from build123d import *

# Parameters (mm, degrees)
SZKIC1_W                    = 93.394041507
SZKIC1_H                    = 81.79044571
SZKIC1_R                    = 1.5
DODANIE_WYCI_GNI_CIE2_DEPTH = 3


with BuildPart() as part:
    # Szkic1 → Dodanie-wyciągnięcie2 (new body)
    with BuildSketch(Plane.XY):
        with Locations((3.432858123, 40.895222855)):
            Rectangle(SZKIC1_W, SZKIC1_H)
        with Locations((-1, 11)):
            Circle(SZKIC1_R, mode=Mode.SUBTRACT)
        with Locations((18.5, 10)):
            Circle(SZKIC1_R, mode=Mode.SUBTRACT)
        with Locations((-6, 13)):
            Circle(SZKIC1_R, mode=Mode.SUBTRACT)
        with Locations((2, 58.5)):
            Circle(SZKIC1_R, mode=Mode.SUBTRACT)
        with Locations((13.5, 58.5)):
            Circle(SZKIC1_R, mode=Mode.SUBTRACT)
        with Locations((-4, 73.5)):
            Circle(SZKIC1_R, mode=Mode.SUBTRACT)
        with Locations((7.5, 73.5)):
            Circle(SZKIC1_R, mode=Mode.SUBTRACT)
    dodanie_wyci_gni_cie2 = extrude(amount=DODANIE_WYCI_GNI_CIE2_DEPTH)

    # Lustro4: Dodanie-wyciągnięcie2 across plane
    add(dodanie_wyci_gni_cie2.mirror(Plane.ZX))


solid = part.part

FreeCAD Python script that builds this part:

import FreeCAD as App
import Part
import Sketcher


def add_polygon(sketch, points):
    """Adds a closed chain of lines whose ends are joined by coincident constraints."""
    first, n = sketch.GeometryCount, len(points)
    for a, b in zip(points, points[1:] + points[:1]):
        sketch.addGeometry(Part.LineSegment(App.Vector(*a, 0), App.Vector(*b, 0)), False)
    for i in range(n):
        sketch.addConstraint(Sketcher.Constraint("Coincident", first + i, 2, first + (i + 1) % n, 1))

doc = App.newDocument("Part")
params = doc.addObject("Spreadsheet::Sheet", "Params")
for row, (alias, value) in enumerate([
    ("sketch1_diameter", "3 mm"),
    ("pad1_length", "3 mm"),
], start=1):
    params.set(f"A{row}", alias)
    params.set(f"B{row}", "=" + value)
    params.setAlias(f"B{row}", alias)

body = doc.addObject("PartDesign::Body", "Body")

# Sketch on XY plane
sketch1 = body.newObject("Sketcher::SketchObject", "Sketch")
sketch1.AttachmentSupport = (doc.getObject("XY_Plane"), [""])
sketch1.MapMode = "FlatFace"
add_polygon(sketch1, [(-43.3, 81.8), (-43.3, 0), (50.1, 0), (50.1, 81.8)])  # lines 0-3
sketch1.addGeometry(Part.Circle(App.Vector(-6, 13, 0), App.Vector(0, 0, 1), 1.5), False)  # 4
sketch1.addGeometry(Part.Circle(App.Vector(-1, 11, 0), App.Vector(0, 0, 1), 1.5), False)  # 5
sketch1.addGeometry(Part.Circle(App.Vector(18.5, 10, 0), App.Vector(0, 0, 1), 1.5), False)  # 6
sketch1.addGeometry(Part.Circle(App.Vector(-4, 73.5, 0), App.Vector(0, 0, 1), 1.5), False)  # 7
sketch1.addGeometry(Part.Circle(App.Vector(2, 58.5, 0), App.Vector(0, 0, 1), 1.5), False)  # 8
sketch1.addGeometry(Part.Circle(App.Vector(7.5, 73.5, 0), App.Vector(0, 0, 1), 1.5), False)  # 9
sketch1.addGeometry(Part.Circle(App.Vector(13.5, 58.5, 0), App.Vector(0, 0, 1), 1.5), False)  # 10
sketch1.addConstraint(Sketcher.Constraint("Vertical", 0))
sketch1.addConstraint(Sketcher.Constraint("Horizontal", 1))
sketch1.addConstraint(Sketcher.Constraint("Vertical", 2))
sketch1.addConstraint(Sketcher.Constraint("Horizontal", 3))
sketch1.addConstraint(Sketcher.Constraint("Equal", 4, 5))
sketch1.addConstraint(Sketcher.Constraint("Equal", 5, 6))
sketch1.addConstraint(Sketcher.Constraint("Equal", 6, 7))
sketch1.addConstraint(Sketcher.Constraint("Equal", 7, 8))
sketch1.addConstraint(Sketcher.Constraint("Equal", 8, 9))
sketch1.addConstraint(Sketcher.Constraint("Equal", 9, 10))
sketch1.addConstraint(Sketcher.Constraint("PointOnObject", 0, 2, -1))
sketch1.addConstraint(Sketcher.Constraint("Horizontal", 7, 3, 9, 3))
sketch1.addConstraint(Sketcher.Constraint("Horizontal", 8, 3, 10, 3))
sketch1.addConstraint(Sketcher.Constraint("Diameter", 4, 3.0))
sketch1.addConstraint(Sketcher.Constraint("DistanceX", 4, 3, -1, 1, 6.0))
sketch1.addConstraint(Sketcher.Constraint("DistanceY", -1, 1, 4, 3, 13.0))
sketch1.addConstraint(Sketcher.Constraint("DistanceX", 5, 3, -1, 1, 1.0))
sketch1.addConstraint(Sketcher.Constraint("DistanceY", -1, 1, 5, 3, 11.0))
sketch1.addConstraint(Sketcher.Constraint("DistanceY", -1, 1, 6, 3, 10.0))
sketch1.addConstraint(Sketcher.Constraint("DistanceX", 7, 3, -1, 1, 4.0))
sketch1.addConstraint(Sketcher.Constraint("DistanceX", -1, 1, 8, 3, 2.0))
sketch1.addConstraint(Sketcher.Constraint("DistanceY", 8, 3, 7, 3, 15.0))
sketch1.addConstraint(Sketcher.Constraint("DistanceX", 9, 3, 6, 3, 11.0))
sketch1.addConstraint(Sketcher.Constraint("DistanceX", 9, 3, 10, 3, 6.0))
sketch1.addConstraint(Sketcher.Constraint("DistanceX", -1, 1, 6, 3, 18.5))
sketch1.addConstraint(Sketcher.Constraint("DistanceY", -1, 1, 7, 3, 73.5))
sketch1.addConstraint(Sketcher.Constraint("DistanceX", 1, 1, 1, 2, 93.394042))
sketch1.addConstraint(Sketcher.Constraint("DistanceY", 0, 2, 0, 1, 81.790446))
sketch1.addConstraint(Sketcher.Constraint("DistanceX", -1, 1, 1, 2, 50.129879))
sketch1.setExpression("Constraints[17]", "Params.sketch1_diameter")
pad1 = body.newObject("PartDesign::Pad", "Pad")
pad1.Profile = sketch1
pad1.setExpression("Length", "Params.pad1_length")
doc.recompute()

mirrored = body.newObject("PartDesign::Mirrored", "Mirrored")
mirrored.Originals = [pad1]
mirrored.MirrorPlane = (doc.getObject("XZ_Plane"), [""])
body.Tip = mirrored

doc.recompute()
